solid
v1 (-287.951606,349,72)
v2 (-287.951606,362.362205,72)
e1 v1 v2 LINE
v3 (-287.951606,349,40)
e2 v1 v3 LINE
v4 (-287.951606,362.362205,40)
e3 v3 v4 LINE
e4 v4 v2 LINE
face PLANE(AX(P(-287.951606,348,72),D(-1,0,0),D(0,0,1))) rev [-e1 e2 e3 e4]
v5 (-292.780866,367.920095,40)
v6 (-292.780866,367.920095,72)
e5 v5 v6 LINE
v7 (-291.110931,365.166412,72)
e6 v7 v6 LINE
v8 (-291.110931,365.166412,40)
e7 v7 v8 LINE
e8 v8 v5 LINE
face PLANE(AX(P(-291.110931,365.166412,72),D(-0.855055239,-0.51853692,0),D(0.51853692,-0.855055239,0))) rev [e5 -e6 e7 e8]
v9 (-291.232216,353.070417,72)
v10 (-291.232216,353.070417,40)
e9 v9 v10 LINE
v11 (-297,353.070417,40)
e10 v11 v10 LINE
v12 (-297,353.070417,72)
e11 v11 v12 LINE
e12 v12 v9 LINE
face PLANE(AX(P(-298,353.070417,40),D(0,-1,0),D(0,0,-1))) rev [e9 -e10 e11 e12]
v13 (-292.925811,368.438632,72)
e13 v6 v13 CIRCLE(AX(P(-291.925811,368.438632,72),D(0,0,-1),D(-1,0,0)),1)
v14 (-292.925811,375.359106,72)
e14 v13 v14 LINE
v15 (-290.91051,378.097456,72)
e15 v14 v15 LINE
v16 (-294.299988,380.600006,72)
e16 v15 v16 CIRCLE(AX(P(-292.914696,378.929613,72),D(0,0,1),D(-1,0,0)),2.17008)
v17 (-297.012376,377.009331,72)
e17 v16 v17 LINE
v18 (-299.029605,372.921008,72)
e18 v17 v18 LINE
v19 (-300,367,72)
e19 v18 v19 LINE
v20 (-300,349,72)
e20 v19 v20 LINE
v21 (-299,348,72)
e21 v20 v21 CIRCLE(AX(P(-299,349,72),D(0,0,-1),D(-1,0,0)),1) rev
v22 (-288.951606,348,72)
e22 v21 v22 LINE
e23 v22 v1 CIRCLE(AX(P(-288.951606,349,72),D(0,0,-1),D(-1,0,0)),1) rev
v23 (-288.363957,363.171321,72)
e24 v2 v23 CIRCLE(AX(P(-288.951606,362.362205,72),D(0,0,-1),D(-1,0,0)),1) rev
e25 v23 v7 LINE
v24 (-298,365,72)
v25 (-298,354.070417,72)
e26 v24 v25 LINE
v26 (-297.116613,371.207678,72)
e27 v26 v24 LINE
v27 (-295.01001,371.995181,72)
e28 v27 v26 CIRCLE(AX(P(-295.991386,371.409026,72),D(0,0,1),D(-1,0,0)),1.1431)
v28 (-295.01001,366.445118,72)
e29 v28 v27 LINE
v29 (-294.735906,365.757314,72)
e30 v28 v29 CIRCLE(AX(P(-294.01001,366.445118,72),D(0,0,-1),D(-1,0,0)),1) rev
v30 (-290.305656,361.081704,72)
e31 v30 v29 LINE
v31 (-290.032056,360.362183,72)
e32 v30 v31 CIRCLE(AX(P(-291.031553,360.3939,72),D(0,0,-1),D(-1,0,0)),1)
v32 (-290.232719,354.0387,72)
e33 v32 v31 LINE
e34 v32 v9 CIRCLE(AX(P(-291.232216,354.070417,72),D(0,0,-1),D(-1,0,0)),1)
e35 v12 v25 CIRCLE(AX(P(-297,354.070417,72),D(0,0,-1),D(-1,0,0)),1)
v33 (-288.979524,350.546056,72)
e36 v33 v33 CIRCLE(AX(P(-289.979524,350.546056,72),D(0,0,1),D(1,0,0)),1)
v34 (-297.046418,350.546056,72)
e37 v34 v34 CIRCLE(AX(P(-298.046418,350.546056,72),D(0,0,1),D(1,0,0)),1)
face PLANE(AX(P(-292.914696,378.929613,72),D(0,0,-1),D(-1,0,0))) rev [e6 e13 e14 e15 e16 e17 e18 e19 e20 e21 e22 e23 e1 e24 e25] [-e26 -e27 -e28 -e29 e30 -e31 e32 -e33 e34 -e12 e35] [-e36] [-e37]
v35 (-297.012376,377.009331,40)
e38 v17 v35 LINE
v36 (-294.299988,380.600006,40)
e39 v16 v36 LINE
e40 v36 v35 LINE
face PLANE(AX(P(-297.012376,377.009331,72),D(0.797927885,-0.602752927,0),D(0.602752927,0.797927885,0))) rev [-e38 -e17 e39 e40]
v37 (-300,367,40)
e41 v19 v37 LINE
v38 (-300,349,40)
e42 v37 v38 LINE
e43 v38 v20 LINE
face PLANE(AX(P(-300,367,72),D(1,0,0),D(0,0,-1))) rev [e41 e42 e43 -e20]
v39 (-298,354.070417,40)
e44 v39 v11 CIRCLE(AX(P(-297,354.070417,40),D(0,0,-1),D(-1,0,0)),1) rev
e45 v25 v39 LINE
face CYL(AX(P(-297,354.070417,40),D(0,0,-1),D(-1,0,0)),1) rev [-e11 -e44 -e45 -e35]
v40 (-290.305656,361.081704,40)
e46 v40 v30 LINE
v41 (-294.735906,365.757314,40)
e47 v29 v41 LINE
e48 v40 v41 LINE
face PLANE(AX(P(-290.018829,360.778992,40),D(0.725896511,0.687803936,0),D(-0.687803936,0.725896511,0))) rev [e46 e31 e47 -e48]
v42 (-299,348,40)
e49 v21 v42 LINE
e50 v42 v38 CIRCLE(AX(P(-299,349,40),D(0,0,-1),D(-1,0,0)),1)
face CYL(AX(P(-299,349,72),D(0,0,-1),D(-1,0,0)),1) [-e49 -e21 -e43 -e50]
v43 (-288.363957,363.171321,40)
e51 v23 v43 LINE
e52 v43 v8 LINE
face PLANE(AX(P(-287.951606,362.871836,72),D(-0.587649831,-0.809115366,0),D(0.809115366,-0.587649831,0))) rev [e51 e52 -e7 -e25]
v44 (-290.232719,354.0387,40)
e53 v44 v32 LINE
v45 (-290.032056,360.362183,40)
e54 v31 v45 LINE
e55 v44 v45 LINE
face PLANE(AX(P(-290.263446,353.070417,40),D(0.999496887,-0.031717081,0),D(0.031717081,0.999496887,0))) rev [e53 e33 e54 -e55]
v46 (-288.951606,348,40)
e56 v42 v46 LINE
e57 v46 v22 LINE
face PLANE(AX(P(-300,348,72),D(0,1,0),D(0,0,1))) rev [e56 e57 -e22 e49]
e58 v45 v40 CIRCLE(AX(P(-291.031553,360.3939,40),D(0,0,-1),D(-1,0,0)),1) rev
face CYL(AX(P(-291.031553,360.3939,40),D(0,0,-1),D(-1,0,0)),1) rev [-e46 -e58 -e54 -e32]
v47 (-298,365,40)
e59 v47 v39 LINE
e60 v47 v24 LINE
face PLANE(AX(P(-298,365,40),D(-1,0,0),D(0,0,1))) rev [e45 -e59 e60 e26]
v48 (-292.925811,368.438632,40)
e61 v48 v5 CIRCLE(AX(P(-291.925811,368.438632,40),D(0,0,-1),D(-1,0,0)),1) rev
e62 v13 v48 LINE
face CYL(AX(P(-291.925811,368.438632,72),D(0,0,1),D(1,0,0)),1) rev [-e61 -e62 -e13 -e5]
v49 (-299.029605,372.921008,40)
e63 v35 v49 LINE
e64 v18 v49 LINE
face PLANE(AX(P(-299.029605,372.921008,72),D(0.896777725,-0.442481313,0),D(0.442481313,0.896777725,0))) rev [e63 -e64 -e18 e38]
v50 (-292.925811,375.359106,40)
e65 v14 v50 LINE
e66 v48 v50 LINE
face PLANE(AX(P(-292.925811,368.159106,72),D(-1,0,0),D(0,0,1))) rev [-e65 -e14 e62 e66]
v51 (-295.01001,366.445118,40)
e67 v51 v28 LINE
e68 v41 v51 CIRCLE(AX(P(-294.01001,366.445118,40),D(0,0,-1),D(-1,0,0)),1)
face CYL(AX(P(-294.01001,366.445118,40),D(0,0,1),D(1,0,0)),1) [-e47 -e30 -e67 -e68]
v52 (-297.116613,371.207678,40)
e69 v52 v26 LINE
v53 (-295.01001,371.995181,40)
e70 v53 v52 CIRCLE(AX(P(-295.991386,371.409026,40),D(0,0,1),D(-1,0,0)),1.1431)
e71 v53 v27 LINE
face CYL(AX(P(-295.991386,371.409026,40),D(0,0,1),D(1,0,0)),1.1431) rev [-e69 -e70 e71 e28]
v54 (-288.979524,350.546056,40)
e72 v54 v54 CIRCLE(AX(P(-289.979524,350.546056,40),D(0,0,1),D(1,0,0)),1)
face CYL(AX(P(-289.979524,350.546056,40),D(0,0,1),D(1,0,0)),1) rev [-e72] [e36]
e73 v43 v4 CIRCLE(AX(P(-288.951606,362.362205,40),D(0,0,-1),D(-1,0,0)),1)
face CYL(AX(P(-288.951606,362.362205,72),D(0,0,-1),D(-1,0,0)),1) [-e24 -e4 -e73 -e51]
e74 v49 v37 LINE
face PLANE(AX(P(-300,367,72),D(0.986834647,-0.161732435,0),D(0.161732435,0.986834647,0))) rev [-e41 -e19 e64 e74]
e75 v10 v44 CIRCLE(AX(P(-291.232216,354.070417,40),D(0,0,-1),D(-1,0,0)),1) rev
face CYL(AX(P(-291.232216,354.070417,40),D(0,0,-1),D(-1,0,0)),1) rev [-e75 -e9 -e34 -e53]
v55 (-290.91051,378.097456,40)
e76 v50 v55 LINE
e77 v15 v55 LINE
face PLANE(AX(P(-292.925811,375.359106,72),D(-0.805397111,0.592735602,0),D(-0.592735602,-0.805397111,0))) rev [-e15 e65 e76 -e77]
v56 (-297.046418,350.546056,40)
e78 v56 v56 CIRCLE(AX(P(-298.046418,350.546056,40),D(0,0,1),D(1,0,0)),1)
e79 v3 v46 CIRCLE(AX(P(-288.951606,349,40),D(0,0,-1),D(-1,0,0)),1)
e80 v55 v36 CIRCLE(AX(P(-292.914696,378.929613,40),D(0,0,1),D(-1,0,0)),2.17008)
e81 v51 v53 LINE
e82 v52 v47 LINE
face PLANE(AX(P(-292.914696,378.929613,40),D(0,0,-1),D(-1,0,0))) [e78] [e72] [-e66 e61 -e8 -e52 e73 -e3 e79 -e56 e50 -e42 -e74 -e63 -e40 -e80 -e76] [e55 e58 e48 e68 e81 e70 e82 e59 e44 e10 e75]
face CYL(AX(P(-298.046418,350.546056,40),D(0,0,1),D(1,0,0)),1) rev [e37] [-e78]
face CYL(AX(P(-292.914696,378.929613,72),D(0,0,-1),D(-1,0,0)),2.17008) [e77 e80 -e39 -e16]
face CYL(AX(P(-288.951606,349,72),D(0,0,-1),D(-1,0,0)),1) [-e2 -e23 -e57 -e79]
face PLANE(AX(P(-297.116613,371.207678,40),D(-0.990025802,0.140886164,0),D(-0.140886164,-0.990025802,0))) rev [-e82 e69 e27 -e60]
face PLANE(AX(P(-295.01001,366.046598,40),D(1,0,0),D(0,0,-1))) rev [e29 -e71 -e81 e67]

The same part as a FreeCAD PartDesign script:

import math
import FreeCAD as App
import Part
import Sketcher

V = App.Vector


def edges_at(feature, points):
    """Names of the edges that pass closest to the given points."""
    edges = feature.Shape.Edges
    near = lambda p: min(range(len(edges)), key=lambda i: edges[i].distToShape(Part.Vertex(*p))[0])
    return sorted({f"Edge{near(p) + 1}" for p in points})

doc = App.newDocument("Part")
params = doc.addObject("Spreadsheet::Sheet", "Params")
for row, (alias, value) in enumerate([
    ("sketch1_height", "19 mm"),
    ("sketch1_length", "6 mm"),
    ("sketch1_height2", "7.2 mm"),
    ("sketch1_length2", "3.5 mm"),
    ("sketch1_length3", "3.4 mm"),
    ("pad1_length", "32 mm"),
    ("pocket1_length", "32 mm"),
    ("sketch3_diameter", "2 mm"),
    ("pocket2_length", "32 mm"),
    ("fillet_radius", "1 mm"),
], start=1):
    params.set(f"A{row}", alias)
    params.set(f"B{row}", "=" + value)
    params.setAlias(f"B{row}", alias)

body = doc.addObject("PartDesign::Body", "Body")

# Sketch on XY plane
sketch1 = body.newObject("Sketcher::SketchObject", "Sketch")
sketch1.AttachmentSupport = (doc.getObject("XY_Plane"), [""])
sketch1.MapMode = "FlatFace"
sketch1.AttachmentOffset = App.Placement(V(0, 0, 40), App.Rotation())
sketch1.addGeometry([
    Part.LineSegment(V(-300, 367, 0), V(-300, 348, 0)),  # 0
    Part.LineSegment(V(-300, 348, 0), V(-287.951606, 348, 0)),  # 1
    Part.LineSegment(V(-287.951606, 348, 0), V(-287.951606, 362.871836, 0)),  # 2
    Part.LineSegment(V(-287.951606, 362.871836, 0), V(-291.110931, 365.166412, 0)),  # 3
    Part.LineSegment(V(-291.110931, 365.166412, 0), V(-292.925811, 368.159106, 0)),  # 4
    Part.LineSegment(V(-292.925811, 368.159106, 0), V(-292.925811, 375.359106, 0)),  # 5
    Part.LineSegment(V(-292.925811, 375.359106, 0), V(-290.91051, 378.097456, 0)),  # 6
    Part.ArcOfCircle(Part.Circle(V(-292.914696, 378.929613, 0), V(0, 0, 1), 2.17008), math.radians(-22.548692), math.radians(129.669633)),  # 7
    Part.LineSegment(V(-294.299988, 380.600006, 0), V(-297.012376, 377.009331, 0)),  # 8
    Part.LineSegment(V(-297.012376, 377.009331, 0), V(-299.029605, 372.921008, 0)),  # 9
    Part.LineSegment(V(-299.029605, 372.921008, 0), V(-300, 367, 0)),  # 10
], False)
sketch1.addConstraint([
    Sketcher.Constraint("Coincident", 0, 2, 1, 1),
    Sketcher.Constraint("Coincident", 1, 2, 2, 1),
    Sketcher.Constraint("Coincident", 2, 2, 3, 1),
    Sketcher.Constraint("Coincident", 3, 2, 4, 1),
    Sketcher.Constraint("Coincident", 4, 2, 5, 1),
    Sketcher.Constraint("Coincident", 5, 2, 6, 1),
    Sketcher.Constraint("Coincident", 6, 2, 7, 1),
    Sketcher.Constraint("Coincident", 7, 2, 8, 1),
    Sketcher.Constraint("Coincident", 8, 2, 9, 1),
    Sketcher.Constraint("Coincident", 9, 2, 10, 1),
    Sketcher.Constraint("Coincident", 10, 2, 0, 1),
    Sketcher.Constraint("Vertical", 0),
    Sketcher.Constraint("Horizontal", 1),
    Sketcher.Constraint("Vertical", 2),
    Sketcher.Constraint("Vertical", 5),
    Sketcher.Constraint("DistanceY", 0, 2, 0, 1, 19.0),
    Sketcher.Constraint("Distance", 10, 6.0),
    Sketcher.Constraint("DistanceY", 5, 1, 5, 2, 7.2),
    Sketcher.Constraint("DistanceX", 0, 2, -1, 1, 300.0),
    Sketcher.Constraint("DistanceY", -1, 1, 0, 2, 348.0),
    Sketcher.Constraint("Distance", 4, 3.5),
    Sketcher.Constraint("Distance", 6, 3.4),
    Sketcher.Constraint("Distance", 8, 4.5),
    Sketcher.Constraint("Radius", 7, 2.17008),
    Sketcher.Constraint("DistanceY", 9, 2, 7, 2, 7.678998),
    Sketcher.Constraint("DistanceY", 3, 2, 7, 3, 13.763201),
    Sketcher.Constraint("DistanceX", 5, 2, 6, 2, 2.015301),
    Sketcher.Constraint("DistanceY", 5, 2, 7, 2, 5.2409),
    Sketcher.Constraint("DistanceX", 1, 1, 1, 2, 12.048394),
    Sketcher.Constraint("DistanceY", 2, 1, 2, 2, 14.871836),
    Sketcher.Constraint("DistanceX", 3, 2, -1, 1, 291.110931),
    Sketcher.Constraint("DistanceX", 4, 2, -1, 1, 292.925811),
    Sketcher.Constraint("DistanceY", -1, 1, 8, 2, 377.009331),
    Sketcher.Constraint("DistanceY", 2, 2, 4, 2, 5.287269),
])
sketch1.setExpression("Constraints[15]", "Params.sketch1_height")
sketch1.setExpression("Constraints[16]", "Params.sketch1_length")
sketch1.setExpression("Constraints[17]", "Params.sketch1_height2")
sketch1.setExpression("Constraints[20]", "Params.sketch1_length2")
sketch1.setExpression("Constraints[21]", "Params.sketch1_length3")
pad1 = body.newObject("PartDesign::Pad", "Pad")
pad1.Profile = sketch1
pad1.setExpression("Length", "Params.pad1_length")

# Sketch on XY plane
sketch2 = body.newObject("Sketcher::SketchObject", "Sketch001")
sketch2.AttachmentSupport = (doc.getObject("XY_Plane"), [""])
sketch2.MapMode = "FlatFace"
sketch2.AttachmentOffset = App.Placement(V(0, 0, 72), App.Rotation())
sketch2.addGeometry([
    Part.LineSegment(V(-297.116613, 371.207678, 0), V(-298, 365, 0)),  # 0
    Part.LineSegment(V(-298, 365, 0), V(-298, 353.070417, 0)),  # 1
    Part.LineSegment(V(-298, 353.070417, 0), V(-290.263446, 353.070417, 0)),  # 2
    Part.LineSegment(V(-290.263446, 353.070417, 0), V(-290.018829, 360.778992, 0)),  # 3
    Part.LineSegment(V(-290.018829, 360.778992, 0), V(-295.01001, 366.046598, 0)),  # 4
    Part.LineSegment(V(-295.01001, 366.046598, 0), V(-295.01001, 371.995181, 0)),  # 5
    Part.ArcOfCircle(Part.Circle(V(-295.991386, 371.409026, 0), V(0, 0, 1), 1.1431), math.radians(30.848944), math.radians(190.145145)),  # 6
], False)
sketch2.addConstraint([
    Sketcher.Constraint("Coincident", 0, 2, 1, 1),
    Sketcher.Constraint("Coincident", 1, 2, 2, 1),
    Sketcher.Constraint("Coincident", 2, 2, 3, 1),
    Sketcher.Constraint("Coincident", 3, 2, 4, 1),
    Sketcher.Constraint("Coincident", 4, 2, 5, 1),
    Sketcher.Constraint("Coincident", 5, 2, 6, 1),
    Sketcher.Constraint("Coincident", 6, 2, 0, 1),
    Sketcher.Constraint("Vertical", 1),
    Sketcher.Constraint("Horizontal", 2),
    Sketcher.Constraint("Vertical", 5),
    Sketcher.Constraint("DistanceX", 0, 2, -1, 1, 298.0),
    Sketcher.Constraint("DistanceY", -1, 1, 0, 2, 365.0),
    Sketcher.Constraint("Radius", 6, 1.1431),
    Sketcher.Constraint("DistanceY", -1, 1, 4, 2, 366.046598),
    Sketcher.Constraint("Distance", 0, 6.270218),
    Sketcher.Constraint("Distance", 4, 7.256691),
    Sketcher.Constraint("DistanceX", 2, 1, 2, 2, 7.736554),
    Sketcher.Constraint("DistanceY", 1, 2, 1, 1, 11.929583),
    Sketcher.Constraint("DistanceY", 5, 1, 5, 2, 5.948583),
    Sketcher.Constraint("DistanceX", 3, 2, -1, 1, 290.018829),
    Sketcher.Constraint("DistanceY", -1, 1, 3, 2, 360.778992),
    Sketcher.Constraint("DistanceY", 1, 2, 6, 3, 18.338609),
])
pocket1 = body.newObject("PartDesign::Pocket", "Pocket")
pocket1.Profile = sketch2
pocket1.setExpression("Length", "Params.pocket1_length")

# Sketch on XY plane
sketch3 = body.newObject("Sketcher::SketchObject", "Sketch002")
sketch3.AttachmentSupport = (doc.getObject("XY_Plane"), [""])
sketch3.MapMode = "FlatFace"
sketch3.AttachmentOffset = App.Placement(V(0, 0, 72), App.Rotation())
sketch3.addGeometry([
    Part.Circle(V(-298.046418, 350.546056, 0), V(0, 0, 1), 1),
    Part.Circle(V(-289.979524, 350.546056, 0), V(0, 0, 1), 1),
], False)
sketch3.addConstraint([
    Sketcher.Constraint("Equal", 0, 1),
    Sketcher.Constraint("Horizontal", 0, 3, 1, 3),
    Sketcher.Constraint("Diameter", 0, 2.0),
    Sketcher.Constraint("DistanceX", 0, 3, -1, 1, 298.046418),
    Sketcher.Constraint("DistanceY", -1, 1, 0, 3, 350.546056),
    Sketcher.Constraint("DistanceX", 1, 3, -1, 1, 289.979524),
])
sketch3.setExpression("Constraints[2]", "Params.sketch3_diameter")
pocket2 = body.newObject("PartDesign::Pocket", "Pocket001")
pocket2.Profile = sketch3
pocket2.setExpression("Length", "Params.pocket2_length")
doc.recompute()

fillet = body.newObject("PartDesign::Fillet", "Fillet")
fillet.Base = (pocket2, edges_at(pocket2, [
    (-292.926, 368.159, 56),
    (-287.952, 362.872, 56),
    (-287.952, 348, 56),
    (-300, 348, 56),
    (-295.01, 366.047, 56),
    (-290.019, 360.779, 56),
    (-290.263, 353.07, 56),
    (-298, 353.07, 56),
]))
fillet.setExpression("Radius", "Params.fillet_radius")

doc.recompute()
